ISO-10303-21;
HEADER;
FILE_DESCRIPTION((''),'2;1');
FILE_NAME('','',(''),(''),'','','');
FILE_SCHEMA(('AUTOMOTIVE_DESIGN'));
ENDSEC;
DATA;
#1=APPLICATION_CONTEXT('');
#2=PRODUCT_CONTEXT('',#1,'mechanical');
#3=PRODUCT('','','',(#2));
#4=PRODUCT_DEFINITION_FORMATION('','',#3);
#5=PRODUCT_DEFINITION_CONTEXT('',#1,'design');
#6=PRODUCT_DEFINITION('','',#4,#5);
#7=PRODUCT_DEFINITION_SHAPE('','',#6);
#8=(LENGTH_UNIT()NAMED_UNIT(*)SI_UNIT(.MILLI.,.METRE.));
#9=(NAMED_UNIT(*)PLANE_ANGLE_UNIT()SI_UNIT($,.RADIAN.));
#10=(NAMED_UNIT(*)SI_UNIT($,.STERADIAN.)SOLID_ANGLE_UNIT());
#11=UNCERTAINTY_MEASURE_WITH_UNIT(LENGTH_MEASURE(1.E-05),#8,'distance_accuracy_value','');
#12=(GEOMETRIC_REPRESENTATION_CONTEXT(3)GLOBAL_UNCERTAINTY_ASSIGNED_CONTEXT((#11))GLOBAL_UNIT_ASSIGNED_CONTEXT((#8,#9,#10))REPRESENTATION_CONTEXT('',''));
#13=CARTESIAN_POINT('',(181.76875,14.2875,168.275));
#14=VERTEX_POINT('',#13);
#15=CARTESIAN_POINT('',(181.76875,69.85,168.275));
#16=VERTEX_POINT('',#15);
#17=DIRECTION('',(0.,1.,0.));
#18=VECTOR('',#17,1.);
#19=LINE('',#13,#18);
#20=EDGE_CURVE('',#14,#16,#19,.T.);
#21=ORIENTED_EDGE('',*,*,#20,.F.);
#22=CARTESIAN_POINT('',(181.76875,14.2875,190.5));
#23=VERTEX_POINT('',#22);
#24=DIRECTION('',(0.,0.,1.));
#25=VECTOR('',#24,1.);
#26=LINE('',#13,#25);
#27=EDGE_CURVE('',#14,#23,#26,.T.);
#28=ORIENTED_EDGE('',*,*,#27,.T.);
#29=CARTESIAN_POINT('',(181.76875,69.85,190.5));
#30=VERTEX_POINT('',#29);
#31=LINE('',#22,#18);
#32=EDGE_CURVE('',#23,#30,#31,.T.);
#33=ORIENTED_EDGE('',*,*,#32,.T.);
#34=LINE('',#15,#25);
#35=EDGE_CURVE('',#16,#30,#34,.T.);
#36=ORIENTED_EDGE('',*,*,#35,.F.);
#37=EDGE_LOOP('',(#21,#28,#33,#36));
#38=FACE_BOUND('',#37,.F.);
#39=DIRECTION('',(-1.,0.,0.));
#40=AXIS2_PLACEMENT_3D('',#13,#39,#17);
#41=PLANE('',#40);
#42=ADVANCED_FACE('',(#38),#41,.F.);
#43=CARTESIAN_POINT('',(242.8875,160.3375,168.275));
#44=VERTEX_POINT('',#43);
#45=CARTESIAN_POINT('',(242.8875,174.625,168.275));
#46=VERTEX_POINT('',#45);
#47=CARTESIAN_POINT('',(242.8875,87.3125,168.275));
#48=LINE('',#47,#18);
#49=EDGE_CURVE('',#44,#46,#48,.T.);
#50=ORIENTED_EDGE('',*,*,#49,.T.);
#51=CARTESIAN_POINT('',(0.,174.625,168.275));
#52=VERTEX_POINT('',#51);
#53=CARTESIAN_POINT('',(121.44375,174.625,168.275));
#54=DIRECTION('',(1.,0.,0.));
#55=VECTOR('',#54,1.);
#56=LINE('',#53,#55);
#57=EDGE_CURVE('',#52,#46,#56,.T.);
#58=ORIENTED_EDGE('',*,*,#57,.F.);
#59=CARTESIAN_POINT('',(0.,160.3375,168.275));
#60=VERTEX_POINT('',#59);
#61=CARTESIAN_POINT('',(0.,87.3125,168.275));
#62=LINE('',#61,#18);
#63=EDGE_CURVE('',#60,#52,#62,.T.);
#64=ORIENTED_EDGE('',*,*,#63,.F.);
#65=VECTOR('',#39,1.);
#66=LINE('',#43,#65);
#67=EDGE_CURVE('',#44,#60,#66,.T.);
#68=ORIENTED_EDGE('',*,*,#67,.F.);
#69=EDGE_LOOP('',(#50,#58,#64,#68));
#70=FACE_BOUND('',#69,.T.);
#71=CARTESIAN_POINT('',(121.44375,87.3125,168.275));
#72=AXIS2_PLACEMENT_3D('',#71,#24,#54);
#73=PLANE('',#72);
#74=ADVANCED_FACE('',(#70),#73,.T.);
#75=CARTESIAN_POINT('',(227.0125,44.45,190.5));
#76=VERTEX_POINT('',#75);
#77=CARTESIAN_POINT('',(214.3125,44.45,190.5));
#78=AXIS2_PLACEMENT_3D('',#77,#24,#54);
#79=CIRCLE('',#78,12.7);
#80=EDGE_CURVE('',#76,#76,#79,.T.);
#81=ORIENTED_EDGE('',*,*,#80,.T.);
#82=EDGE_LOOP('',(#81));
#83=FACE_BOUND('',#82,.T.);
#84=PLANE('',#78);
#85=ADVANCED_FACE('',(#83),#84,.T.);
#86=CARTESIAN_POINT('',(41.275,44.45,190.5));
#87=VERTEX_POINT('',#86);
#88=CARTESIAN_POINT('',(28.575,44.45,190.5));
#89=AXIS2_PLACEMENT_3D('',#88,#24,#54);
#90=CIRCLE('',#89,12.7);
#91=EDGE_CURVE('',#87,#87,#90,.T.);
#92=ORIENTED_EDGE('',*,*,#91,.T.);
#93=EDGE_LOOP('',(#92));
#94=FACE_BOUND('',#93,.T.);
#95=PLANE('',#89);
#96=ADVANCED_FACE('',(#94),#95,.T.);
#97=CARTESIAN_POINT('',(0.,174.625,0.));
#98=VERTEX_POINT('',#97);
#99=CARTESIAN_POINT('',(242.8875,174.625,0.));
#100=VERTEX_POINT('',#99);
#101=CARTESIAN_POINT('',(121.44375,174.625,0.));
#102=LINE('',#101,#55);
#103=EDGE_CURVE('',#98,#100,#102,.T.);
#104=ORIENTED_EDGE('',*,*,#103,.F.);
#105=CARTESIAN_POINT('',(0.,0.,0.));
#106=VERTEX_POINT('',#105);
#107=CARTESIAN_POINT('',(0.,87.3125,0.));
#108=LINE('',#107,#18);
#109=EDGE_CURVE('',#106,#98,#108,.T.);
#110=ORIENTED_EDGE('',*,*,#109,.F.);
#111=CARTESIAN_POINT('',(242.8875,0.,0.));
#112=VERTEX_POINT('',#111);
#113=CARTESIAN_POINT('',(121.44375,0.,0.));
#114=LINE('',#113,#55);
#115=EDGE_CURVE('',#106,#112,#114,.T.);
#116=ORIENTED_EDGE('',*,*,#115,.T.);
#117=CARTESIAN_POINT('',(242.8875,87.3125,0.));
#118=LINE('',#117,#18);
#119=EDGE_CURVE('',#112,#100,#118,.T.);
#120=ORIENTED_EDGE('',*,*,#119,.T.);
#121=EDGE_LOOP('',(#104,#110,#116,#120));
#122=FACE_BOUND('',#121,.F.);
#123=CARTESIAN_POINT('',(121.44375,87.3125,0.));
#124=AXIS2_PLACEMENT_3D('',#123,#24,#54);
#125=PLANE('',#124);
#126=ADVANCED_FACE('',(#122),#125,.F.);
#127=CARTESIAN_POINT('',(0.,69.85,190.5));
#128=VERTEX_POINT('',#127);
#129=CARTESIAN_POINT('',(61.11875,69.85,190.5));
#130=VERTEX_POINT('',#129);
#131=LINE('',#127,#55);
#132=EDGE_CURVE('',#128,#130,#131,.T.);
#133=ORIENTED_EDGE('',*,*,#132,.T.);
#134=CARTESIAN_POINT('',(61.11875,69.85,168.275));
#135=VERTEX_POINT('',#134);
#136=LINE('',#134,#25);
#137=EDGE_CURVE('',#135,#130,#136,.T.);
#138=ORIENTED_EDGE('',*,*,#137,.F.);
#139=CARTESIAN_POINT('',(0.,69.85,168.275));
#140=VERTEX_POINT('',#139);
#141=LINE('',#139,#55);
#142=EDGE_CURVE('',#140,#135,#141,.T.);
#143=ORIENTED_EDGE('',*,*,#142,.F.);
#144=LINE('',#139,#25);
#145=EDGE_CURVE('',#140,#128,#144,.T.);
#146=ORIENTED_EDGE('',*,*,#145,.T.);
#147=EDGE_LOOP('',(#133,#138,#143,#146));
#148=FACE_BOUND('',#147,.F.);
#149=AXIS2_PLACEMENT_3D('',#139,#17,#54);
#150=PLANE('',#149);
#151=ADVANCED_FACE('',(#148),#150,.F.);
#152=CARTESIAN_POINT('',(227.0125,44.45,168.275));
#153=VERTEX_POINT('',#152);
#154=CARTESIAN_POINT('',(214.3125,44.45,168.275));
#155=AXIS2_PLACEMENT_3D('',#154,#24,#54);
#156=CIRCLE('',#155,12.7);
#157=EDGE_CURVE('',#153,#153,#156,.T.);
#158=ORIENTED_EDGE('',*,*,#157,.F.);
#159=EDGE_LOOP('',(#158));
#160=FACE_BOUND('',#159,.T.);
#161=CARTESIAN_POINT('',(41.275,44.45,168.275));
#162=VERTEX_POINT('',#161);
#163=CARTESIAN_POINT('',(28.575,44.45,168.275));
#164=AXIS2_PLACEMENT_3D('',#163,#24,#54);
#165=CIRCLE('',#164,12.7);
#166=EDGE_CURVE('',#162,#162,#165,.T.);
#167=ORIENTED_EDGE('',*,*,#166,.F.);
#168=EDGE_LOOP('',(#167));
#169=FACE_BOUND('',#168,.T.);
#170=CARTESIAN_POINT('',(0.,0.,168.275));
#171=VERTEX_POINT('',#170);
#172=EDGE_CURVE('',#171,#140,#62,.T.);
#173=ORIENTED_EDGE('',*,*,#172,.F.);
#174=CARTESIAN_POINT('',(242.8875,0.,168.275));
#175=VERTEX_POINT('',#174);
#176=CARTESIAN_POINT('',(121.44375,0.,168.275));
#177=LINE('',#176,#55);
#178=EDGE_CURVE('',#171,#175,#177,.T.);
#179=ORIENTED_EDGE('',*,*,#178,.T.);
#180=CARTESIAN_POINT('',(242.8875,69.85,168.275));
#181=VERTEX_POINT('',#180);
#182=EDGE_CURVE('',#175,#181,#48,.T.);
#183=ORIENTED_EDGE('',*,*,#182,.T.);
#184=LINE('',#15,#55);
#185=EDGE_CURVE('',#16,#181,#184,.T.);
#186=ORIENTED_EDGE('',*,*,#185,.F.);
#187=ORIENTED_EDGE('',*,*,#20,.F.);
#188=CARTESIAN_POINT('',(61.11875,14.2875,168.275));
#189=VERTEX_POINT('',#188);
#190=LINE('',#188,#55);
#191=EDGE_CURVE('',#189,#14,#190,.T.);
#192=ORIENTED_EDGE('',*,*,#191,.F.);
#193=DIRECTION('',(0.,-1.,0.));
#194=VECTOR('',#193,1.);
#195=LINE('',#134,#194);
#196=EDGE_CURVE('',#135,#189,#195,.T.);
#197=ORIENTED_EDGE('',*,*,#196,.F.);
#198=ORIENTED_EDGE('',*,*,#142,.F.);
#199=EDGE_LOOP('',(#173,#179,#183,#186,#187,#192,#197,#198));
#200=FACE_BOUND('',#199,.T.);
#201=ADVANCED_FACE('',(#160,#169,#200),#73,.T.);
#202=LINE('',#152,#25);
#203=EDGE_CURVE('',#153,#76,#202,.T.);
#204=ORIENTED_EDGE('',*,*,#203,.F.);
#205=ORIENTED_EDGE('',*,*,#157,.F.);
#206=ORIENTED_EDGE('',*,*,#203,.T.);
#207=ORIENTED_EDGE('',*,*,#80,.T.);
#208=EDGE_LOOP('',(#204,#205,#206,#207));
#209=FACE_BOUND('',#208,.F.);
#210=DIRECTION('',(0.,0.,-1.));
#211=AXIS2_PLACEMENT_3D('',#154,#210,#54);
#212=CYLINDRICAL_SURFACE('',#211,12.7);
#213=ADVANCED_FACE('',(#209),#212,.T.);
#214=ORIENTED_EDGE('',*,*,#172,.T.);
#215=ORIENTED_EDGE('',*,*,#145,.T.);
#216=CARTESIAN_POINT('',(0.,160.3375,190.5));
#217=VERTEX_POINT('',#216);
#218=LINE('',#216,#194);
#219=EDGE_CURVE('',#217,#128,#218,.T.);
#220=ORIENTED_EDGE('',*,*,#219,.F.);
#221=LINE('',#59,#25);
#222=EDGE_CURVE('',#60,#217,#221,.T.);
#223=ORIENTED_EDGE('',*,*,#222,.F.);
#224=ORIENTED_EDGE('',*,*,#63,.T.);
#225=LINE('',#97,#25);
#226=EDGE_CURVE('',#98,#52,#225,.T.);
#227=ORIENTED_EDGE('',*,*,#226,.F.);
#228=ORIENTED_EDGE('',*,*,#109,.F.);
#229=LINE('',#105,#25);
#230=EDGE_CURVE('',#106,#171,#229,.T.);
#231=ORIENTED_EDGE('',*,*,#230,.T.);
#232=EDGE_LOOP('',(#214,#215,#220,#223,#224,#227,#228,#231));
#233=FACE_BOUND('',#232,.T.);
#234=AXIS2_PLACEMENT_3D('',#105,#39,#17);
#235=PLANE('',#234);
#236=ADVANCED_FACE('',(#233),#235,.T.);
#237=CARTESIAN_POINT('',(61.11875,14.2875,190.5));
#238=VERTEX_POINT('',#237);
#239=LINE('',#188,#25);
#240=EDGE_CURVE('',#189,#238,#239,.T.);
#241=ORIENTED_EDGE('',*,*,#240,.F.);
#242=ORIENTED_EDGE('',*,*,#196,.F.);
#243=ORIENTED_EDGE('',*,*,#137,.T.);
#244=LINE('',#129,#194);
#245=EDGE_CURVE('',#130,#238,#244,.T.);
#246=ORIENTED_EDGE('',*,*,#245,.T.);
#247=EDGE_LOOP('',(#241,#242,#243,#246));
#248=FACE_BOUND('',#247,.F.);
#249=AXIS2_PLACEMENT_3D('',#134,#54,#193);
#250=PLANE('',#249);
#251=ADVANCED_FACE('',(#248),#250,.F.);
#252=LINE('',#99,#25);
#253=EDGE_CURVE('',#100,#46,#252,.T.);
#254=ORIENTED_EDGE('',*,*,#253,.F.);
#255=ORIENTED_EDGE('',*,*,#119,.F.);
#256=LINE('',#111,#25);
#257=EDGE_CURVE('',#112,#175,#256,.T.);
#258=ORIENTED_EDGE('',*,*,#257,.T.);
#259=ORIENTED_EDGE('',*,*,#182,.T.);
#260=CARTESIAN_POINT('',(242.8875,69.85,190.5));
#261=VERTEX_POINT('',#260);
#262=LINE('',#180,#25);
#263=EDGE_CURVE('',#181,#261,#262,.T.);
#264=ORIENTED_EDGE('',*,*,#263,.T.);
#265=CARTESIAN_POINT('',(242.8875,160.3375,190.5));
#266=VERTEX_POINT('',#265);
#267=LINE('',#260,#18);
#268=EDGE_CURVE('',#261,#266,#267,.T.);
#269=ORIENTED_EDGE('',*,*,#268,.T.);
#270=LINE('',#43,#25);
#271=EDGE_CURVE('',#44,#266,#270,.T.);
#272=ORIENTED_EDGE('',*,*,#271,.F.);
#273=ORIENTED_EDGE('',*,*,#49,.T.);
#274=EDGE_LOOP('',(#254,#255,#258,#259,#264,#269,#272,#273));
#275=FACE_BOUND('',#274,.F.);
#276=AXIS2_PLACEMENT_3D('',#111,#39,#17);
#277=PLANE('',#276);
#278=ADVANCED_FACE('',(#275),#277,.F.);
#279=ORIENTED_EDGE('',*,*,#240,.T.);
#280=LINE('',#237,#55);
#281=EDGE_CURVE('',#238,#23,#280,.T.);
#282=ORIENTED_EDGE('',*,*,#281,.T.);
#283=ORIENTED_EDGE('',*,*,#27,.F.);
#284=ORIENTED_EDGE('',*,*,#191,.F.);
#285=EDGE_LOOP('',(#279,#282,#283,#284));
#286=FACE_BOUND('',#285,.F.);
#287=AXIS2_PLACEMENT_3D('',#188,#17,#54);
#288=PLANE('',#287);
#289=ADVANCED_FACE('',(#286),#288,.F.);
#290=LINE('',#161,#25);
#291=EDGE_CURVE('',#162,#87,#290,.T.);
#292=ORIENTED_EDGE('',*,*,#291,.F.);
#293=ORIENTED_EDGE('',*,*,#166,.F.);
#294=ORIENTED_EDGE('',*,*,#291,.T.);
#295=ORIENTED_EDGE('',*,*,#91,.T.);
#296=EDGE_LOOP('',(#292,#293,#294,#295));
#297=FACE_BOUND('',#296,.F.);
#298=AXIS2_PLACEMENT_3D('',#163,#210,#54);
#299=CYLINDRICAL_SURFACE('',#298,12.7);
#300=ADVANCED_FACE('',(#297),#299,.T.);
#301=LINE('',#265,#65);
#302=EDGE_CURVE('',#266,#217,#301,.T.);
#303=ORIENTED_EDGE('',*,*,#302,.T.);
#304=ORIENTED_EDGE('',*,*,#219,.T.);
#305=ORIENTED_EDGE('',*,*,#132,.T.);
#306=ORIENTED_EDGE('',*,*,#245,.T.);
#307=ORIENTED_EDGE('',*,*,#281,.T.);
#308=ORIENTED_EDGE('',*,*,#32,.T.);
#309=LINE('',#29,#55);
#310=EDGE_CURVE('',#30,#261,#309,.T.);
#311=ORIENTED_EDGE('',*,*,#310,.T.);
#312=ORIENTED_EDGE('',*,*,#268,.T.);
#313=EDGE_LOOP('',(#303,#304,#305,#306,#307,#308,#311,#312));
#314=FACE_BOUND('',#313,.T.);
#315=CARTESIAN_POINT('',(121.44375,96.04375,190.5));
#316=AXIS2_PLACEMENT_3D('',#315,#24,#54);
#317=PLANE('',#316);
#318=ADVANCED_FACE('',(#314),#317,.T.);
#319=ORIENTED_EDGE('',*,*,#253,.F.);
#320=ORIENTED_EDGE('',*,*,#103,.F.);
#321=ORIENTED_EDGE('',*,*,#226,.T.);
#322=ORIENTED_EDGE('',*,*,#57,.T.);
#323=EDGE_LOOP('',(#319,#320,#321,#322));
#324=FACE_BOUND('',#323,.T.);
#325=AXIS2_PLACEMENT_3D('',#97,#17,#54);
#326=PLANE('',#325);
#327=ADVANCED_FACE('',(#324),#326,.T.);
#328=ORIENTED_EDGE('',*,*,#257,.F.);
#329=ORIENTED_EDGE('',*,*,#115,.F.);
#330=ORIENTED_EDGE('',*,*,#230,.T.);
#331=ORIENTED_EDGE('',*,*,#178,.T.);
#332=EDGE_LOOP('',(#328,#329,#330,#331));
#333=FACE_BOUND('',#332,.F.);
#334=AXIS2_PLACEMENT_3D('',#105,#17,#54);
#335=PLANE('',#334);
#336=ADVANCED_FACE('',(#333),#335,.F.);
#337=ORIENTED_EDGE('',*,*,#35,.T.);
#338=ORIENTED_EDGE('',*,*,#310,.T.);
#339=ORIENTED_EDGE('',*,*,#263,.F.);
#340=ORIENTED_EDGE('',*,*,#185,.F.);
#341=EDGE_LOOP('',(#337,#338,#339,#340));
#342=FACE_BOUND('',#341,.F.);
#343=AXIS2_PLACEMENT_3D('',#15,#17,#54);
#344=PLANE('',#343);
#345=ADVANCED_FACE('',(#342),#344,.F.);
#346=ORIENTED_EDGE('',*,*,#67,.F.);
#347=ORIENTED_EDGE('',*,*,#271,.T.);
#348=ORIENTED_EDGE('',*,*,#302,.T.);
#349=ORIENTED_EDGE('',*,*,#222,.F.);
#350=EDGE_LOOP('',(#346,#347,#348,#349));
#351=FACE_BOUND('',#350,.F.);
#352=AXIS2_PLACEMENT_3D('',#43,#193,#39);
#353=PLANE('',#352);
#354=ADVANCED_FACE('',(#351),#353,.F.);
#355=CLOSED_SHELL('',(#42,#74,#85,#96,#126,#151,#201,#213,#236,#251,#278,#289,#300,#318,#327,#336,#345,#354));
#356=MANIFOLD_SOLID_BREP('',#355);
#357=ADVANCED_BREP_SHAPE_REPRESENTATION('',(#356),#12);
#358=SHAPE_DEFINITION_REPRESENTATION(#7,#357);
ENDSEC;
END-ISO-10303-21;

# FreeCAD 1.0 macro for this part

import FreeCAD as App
import Part
import Sketcher
Q = App.Units.Quantity


def add_polygon(sketch, points):
    """Adds a closed chain of lines whose ends are joined by coincident constraints."""
    first, n = sketch.GeometryCount, len(points)
    for a, b in zip(points, points[1:] + points[:1]):
        sketch.addGeometry(Part.LineSegment(App.Vector(*a, 0), App.Vector(*b, 0)), False)
    for i in range(n):
        sketch.addConstraint(Sketcher.Constraint("Coincident", first + i, 2, first + (i + 1) % n, 1))

doc = App.newDocument("Part")
body = doc.addObject("PartDesign::Body", "Body")

# Sketch on XY plane
sketch1 = body.newObject("Sketcher::SketchObject", "Sketch")
sketch1.AttachmentSupport = (doc.getObject("XY_Plane"), [""])
sketch1.MapMode = "FlatFace"
add_polygon(sketch1, [(0, 175), (0, 0), (243, 0), (243, 175)])  # lines 0-3
sketch1.addConstraint(Sketcher.Constraint("Vertical", 0))
sketch1.addConstraint(Sketcher.Constraint("Horizontal", 1))
sketch1.addConstraint(Sketcher.Constraint("Vertical", 2))
sketch1.addConstraint(Sketcher.Constraint("Horizontal", 3))
sketch1.addConstraint(Sketcher.Constraint("Coincident", 0, 2, -1, 1))
sketch1.addConstraint(Sketcher.Constraint("DistanceX", 1, 1, 1, 2, Q("9.5625 in")))
sketch1.addConstraint(Sketcher.Constraint("DistanceY", 0, 2, 0, 1, Q("6.875 in")))
pad1 = body.newObject("PartDesign::Pad", "Pad")
pad1.Profile = sketch1
pad1.Length = Q("6.625 in")

# Sketch on XY plane
sketch2 = body.newObject("Sketcher::SketchObject", "Sketch001")
sketch2.AttachmentSupport = (doc.getObject("XY_Plane"), [""])
sketch2.MapMode = "FlatFace"
sketch2.AttachmentOffset = App.Placement(App.Vector(0, 0, 6.625 * 25.4), App.Rotation())
sketch2.addGeometry(Part.Circle(App.Vector(29, 44, 0), App.Vector(0, 0, 1), 13), False)  # 0
sketch2.addGeometry(Part.Circle(App.Vector(214, 44, 0), App.Vector(0, 0, 1), 13), False)  # 1
add_polygon(sketch2, [(243, 160), (0, 160), (0, 70), (61, 70), (61, 14), (182, 14), (182, 70), (243, 70)])  # lines 2-9
sketch2.addConstraint(Sketcher.Constraint("Horizontal", 2))
sketch2.addConstraint(Sketcher.Constraint("Vertical", 3))
sketch2.addConstraint(Sketcher.Constraint("Horizontal", 4))
sketch2.addConstraint(Sketcher.Constraint("Vertical", 5))
sketch2.addConstraint(Sketcher.Constraint("Horizontal", 6))
sketch2.addConstraint(Sketcher.Constraint("Vertical", 7))
sketch2.addConstraint(Sketcher.Constraint("Horizontal", 8))
sketch2.addConstraint(Sketcher.Constraint("Vertical", 9))
sketch2.addConstraint(Sketcher.Constraint("Equal", 0, 1))
sketch2.addConstraint(Sketcher.Constraint("PointOnObject", 2, 2, -2))
sketch2.addConstraint(Sketcher.Constraint("Horizontal", 0, 3, 1, 3))
sketch2.addConstraint(Sketcher.Constraint("Horizontal", 4, 2, 7, 2))
sketch2.addConstraint(Sketcher.Constraint("Equal", 4, 8))
sketch2.addConstraint(Sketcher.Constraint("Diameter", 0, Q("1 in")))
sketch2.addConstraint(Sketcher.Constraint("DistanceY", 0, 3, 3, 2, Q("1 in")))
sketch2.addConstraint(Sketcher.Constraint("DistanceX", 6, 1, 6, 2, Q("4.75 in")))
sketch2.addConstraint(Sketcher.Constraint("DistanceX", 2, 2, 2, 1, Q("9.5625 in")))
sketch2.addConstraint(Sketcher.Constraint("DistanceY", 3, 2, 3, 1, Q("3.5625 in")))
sketch2.addConstraint(Sketcher.Constraint("DistanceY", 5, 2, 5, 1, Q("2.1875 in")))
sketch2.addConstraint(Sketcher.Constraint("DistanceY", -1, 1, 0, 3, Q("1.75 in")))
sketch2.addConstraint(Sketcher.Constraint("DistanceX", -1, 1, 0, 3, Q("1.125 in")))
sketch2.addConstraint(Sketcher.Constraint("DistanceX", -1, 1, 1, 3, Q("8.4375 in")))
pad2 = body.newObject("PartDesign::Pad", "Pad001")
pad2.Profile = sketch2
pad2.Length = Q("0.875 in")

doc.recompute()
